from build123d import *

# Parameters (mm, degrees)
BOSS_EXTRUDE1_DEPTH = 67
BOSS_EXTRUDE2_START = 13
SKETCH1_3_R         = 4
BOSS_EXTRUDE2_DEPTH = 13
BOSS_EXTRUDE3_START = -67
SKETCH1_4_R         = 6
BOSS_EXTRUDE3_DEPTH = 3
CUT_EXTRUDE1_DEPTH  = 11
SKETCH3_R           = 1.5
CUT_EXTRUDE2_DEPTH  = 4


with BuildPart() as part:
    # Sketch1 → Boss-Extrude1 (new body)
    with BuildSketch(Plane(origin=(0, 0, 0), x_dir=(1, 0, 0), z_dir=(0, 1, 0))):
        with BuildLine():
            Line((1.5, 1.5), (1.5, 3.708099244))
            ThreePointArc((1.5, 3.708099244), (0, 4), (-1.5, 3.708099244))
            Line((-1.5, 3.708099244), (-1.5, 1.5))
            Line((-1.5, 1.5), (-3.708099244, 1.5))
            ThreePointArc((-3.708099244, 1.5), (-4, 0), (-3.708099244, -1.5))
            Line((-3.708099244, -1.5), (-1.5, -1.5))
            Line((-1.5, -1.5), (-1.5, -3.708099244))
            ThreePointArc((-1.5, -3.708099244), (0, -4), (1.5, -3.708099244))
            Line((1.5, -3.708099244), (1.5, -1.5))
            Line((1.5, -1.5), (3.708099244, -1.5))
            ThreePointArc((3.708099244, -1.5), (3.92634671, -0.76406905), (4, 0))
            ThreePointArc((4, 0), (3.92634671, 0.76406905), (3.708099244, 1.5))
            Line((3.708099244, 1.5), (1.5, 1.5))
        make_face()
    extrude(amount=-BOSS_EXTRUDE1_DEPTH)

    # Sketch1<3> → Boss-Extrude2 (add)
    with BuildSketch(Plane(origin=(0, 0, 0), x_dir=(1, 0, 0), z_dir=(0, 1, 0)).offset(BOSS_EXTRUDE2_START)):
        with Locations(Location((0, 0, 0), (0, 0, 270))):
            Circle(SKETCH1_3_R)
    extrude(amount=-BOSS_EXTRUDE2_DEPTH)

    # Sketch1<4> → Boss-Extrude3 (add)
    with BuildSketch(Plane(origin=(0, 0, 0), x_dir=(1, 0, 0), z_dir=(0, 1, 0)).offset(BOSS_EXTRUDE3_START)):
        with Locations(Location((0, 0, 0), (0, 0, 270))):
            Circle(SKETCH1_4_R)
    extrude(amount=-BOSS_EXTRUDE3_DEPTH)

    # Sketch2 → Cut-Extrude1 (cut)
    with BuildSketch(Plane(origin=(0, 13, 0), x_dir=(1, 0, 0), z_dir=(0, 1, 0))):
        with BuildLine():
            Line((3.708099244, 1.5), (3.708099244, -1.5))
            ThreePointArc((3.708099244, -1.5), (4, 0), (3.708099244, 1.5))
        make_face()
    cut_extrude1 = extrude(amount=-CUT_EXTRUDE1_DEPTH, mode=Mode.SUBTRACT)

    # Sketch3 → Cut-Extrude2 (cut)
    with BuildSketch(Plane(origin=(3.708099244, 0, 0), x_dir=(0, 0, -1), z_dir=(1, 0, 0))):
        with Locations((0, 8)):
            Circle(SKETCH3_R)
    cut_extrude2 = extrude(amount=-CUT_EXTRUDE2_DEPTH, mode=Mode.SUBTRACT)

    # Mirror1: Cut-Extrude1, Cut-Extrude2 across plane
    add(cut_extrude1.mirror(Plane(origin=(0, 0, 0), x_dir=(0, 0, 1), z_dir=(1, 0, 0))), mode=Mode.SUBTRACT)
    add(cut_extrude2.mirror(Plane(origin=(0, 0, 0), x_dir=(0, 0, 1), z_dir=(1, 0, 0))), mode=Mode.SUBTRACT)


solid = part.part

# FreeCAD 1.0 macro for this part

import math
import FreeCAD as App
import Part
import Sketcher
from FreeCAD import Vector
Q = App.Units.Quantity

doc = App.newDocument("Part")
params = doc.addObject("Spreadsheet::Sheet", "Params")
for row, (alias, value) in enumerate([
    ("sketch1_radius", "4 mm"),
    ("pad1_length", "67 mm"),
    ("sketch2_diameter", "8 mm"),
    ("pad2_length", "13 mm"),
    ("sketch3_diameter", "12 mm"),
    ("pad3_length", "3 mm"),
    ("sketch4_radius", "4 mm"),
    ("sketch4_height", "3 mm"),
    ("pocket1_length", "11 mm"),
    ("sketch5_diameter", "3 mm"),
    ("pocket2_length", "4 mm"),
], start=1):
    params.set(f"A{row}", alias)
    params.set(f"B{row}", "=" + value)
    params.setAlias(f"B{row}", alias)

body = doc.addObject("PartDesign::Body", "Body")

# Sketch on XZ plane
sketch1 = body.newObject("Sketcher::SketchObject", "Sketch")
sketch1.AttachmentSupport = (doc.getObject("XZ_Plane"), [""])
sketch1.MapMode = "FlatFace"
sketch1.addGeometry(Part.LineSegment(Vector(1.5, -1.5, 0), Vector(1.5, -3.708099, 0)), False)
sketch1.addGeometry(Part.ArcOfCircle(Part.Circle(Vector(0, 0, 0), Vector(0, 0, 1), 4), math.radians(-112.024313), math.radians(-67.975687)), False)
sketch1.addGeometry(Part.LineSegment(Vector(-1.5, -3.708099, 0), Vector(-1.5, -1.5, 0)), False)
sketch1.addGeometry(Part.LineSegment(Vector(-1.5, -1.5, 0), Vector(-3.708099, -1.5, 0)), False)
sketch1.addGeometry(Part.ArcOfCircle(Part.Circle(Vector(0, 0, 0), Vector(0, 0, 1), 4), math.radians(157.975687), math.radians(202.024313)), False)
sketch1.addGeometry(Part.LineSegment(Vector(-3.708099, 1.5, 0), Vector(-1.5, 1.5, 0)), False)
sketch1.addGeometry(Part.LineSegment(Vector(-1.5, 1.5, 0), Vector(-1.5, 3.708099, 0)), False)
sketch1.addGeometry(Part.ArcOfCircle(Part.Circle(Vector(0, 0, 0), Vector(0, 0, 1), 4), math.radians(67.975687), math.radians(112.024313)), False)
sketch1.addGeometry(Part.LineSegment(Vector(1.5, 3.708099, 0), Vector(1.5, 1.5, 0)), False)
sketch1.addGeometry(Part.LineSegment(Vector(1.5, 1.5, 0), Vector(3.708099, 1.5, 0)), False)
sketch1.addGeometry(Part.ArcOfCircle(Part.Circle(Vector(0, 0, 0), Vector(0, 0, 1), 4), math.radians(0), math.radians(22.024313)), False)
sketch1.addGeometry(Part.ArcOfCircle(Part.Circle(Vector(0, 0, 0), Vector(0, 0, 1), 4), math.radians(-22.024313), math.radians(0)), False)
sketch1.addGeometry(Part.LineSegment(Vector(3.708099, -1.5, 0), Vector(1.5, -1.5, 0)), False)
sketch1.addConstraint(Sketcher.Constraint("Coincident", 0, 2, 1, 2))
sketch1.addConstraint(Sketcher.Constraint("Coincident", 1, 1, 2, 1))
sketch1.addConstraint(Sketcher.Constraint("Coincident", 2, 2, 3, 1))
sketch1.addConstraint(Sketcher.Constraint("Coincident", 3, 2, 4, 2))
sketch1.addConstraint(Sketcher.Constraint("Coincident", 4, 1, 5, 1))
sketch1.addConstraint(Sketcher.Constraint("Coincident", 5, 2, 6, 1))
sketch1.addConstraint(Sketcher.Constraint("Coincident", 6, 2, 7, 2))
sketch1.addConstraint(Sketcher.Constraint("Coincident", 7, 1, 8, 1))
sketch1.addConstraint(Sketcher.Constraint("Coincident", 8, 2, 9, 1))
sketch1.addConstraint(Sketcher.Constraint("Coincident", 9, 2, 10, 2))
sketch1.addConstraint(Sketcher.Constraint("Tangent", 10, 1, 11, 2))
sketch1.addConstraint(Sketcher.Constraint("Coincident", 11, 1, 12, 1))
sketch1.addConstraint(Sketcher.Constraint("Coincident", 12, 2, 0, 1))
sketch1.addConstraint(Sketcher.Constraint("Vertical", 0))
sketch1.addConstraint(Sketcher.Constraint("Vertical", 2))
sketch1.addConstraint(Sketcher.Constraint("Horizontal", 3))
sketch1.addConstraint(Sketcher.Constraint("Horizontal", 5))
sketch1.addConstraint(Sketcher.Constraint("Vertical", 6))
sketch1.addConstraint(Sketcher.Constraint("Vertical", 8))
sketch1.addConstraint(Sketcher.Constraint("Horizontal", 9))
sketch1.addConstraint(Sketcher.Constraint("Horizontal", 12))
sketch1.addConstraint(Sketcher.Constraint("Coincident", 1, 3, -1, 1))
sketch1.addConstraint(Sketcher.Constraint("Coincident", 4, 3, -1, 1))
sketch1.addConstraint(Sketcher.Constraint("Coincident", 7, 3, -1, 1))
sketch1.addConstraint(Sketcher.Constraint("Coincident", 10, 3, -1, 1))
sketch1.addConstraint(Sketcher.Constraint("Equal", 1, 4))
sketch1.addConstraint(Sketcher.Constraint("Equal", 4, 7))
sketch1.addConstraint(Sketcher.Constraint("Equal", 7, 10))
sketch1.addConstraint(Sketcher.Constraint("Equal", 10, 11))
sketch1.addConstraint(Sketcher.Constraint("Symmetric", 2, 2, 8, 2, -1, 1))
sketch1.addConstraint(Sketcher.Constraint("Symmetric", 5, 2, 12, 2, -1, 1))
sketch1.addConstraint(Sketcher.Constraint("Symmetric", 5, 2, 8, 2, -2))
sketch1.addConstraint(Sketcher.Constraint("PointOnObject", 10, 1, -1))
sketch1.addConstraint(Sketcher.Constraint("Equal", 12, 0))
sketch1.addConstraint(Sketcher.Constraint("Radius", 1, Q("4 mm")))
sketch1.addConstraint(Sketcher.Constraint("DistanceX", 1, 1, 0, 2, Q("3 mm")))
sketch1.setExpression("Constraints[34]", "Params.sketch1_radius")
pad1 = body.newObject("PartDesign::Pad", "Pad")
pad1.Profile = sketch1
pad1.setExpression("Length", "Params.pad1_length")

# Sketch on XZ plane
sketch2 = body.newObject("Sketcher::SketchObject", "Sketch001")
sketch2.AttachmentSupport = (doc.getObject("XZ_Plane"), [""])
sketch2.MapMode = "FlatFace"
sketch2.AttachmentOffset = App.Placement(Vector(0, 0, -13), App.Rotation())
sketch2.addGeometry(Part.Circle(Vector(0, 0, 0), Vector(0, 0, 1), 4), False)
sketch2.addConstraint(Sketcher.Constraint("Coincident", 0, 3, -1, 1))
sketch2.addConstraint(Sketcher.Constraint("Diameter", 0, Q("8 mm")))
sketch2.setExpression("Constraints[1]", "Params.sketch2_diameter")
pad2 = body.newObject("PartDesign::Pad", "Pad001")
pad2.Profile = sketch2
pad2.setExpression("Length", "Params.pad2_length")

# Sketch on XZ plane
sketch3 = body.newObject("Sketcher::SketchObject", "Sketch002")
sketch3.AttachmentSupport = (doc.getObject("XZ_Plane"), [""])
sketch3.MapMode = "FlatFace"
sketch3.AttachmentOffset = App.Placement(Vector(0, 0, 67), App.Rotation())
sketch3.addGeometry(Part.Circle(Vector(0, 0, 0), Vector(0, 0, 1), 6), False)
sketch3.addConstraint(Sketcher.Constraint("Coincident", 0, 3, -1, 1))
sketch3.addConstraint(Sketcher.Constraint("Diameter", 0, Q("12 mm")))
sketch3.setExpression("Constraints[1]", "Params.sketch3_diameter")
pad3 = body.newObject("PartDesign::Pad", "Pad002")
pad3.Profile = sketch3
pad3.setExpression("Length", "Params.pad3_length")

# Sketch on XZ plane
sketch4 = body.newObject("Sketcher::SketchObject", "Sketch003")
sketch4.AttachmentSupport = (doc.getObject("XZ_Plane"), [""])
sketch4.MapMode = "FlatFace"
sketch4.AttachmentOffset = App.Placement(Vector(0, 0, -13), App.Rotation())
sketch4.addGeometry(Part.LineSegment(Vector(3.708099, -1.5, 0), Vector(3.708099, 1.5, 0)), False)
sketch4.addGeometry(Part.ArcOfCircle(Part.Circle(Vector(0, 0, 0), Vector(0, 0, 1), 4), math.radians(-22.024313), math.radians(22.024313)), False)
sketch4.addConstraint(Sketcher.Constraint("Coincident", 0, 1, 1, 1))
sketch4.addConstraint(Sketcher.Constraint("Coincident", 1, 2, 0, 2))
sketch4.addConstraint(Sketcher.Constraint("Vertical", 0))
sketch4.addConstraint(Sketcher.Constraint("Coincident", 1, 3, -1, 1))
sketch4.addConstraint(Sketcher.Constraint("Radius", 1, Q("4 mm")))
sketch4.addConstraint(Sketcher.Constraint("DistanceY", 0, 1, 0, 2, Q("3 mm")))
sketch4.setExpression("Constraints[4]", "Params.sketch4_radius")
sketch4.setExpression("Constraints[5]", "Params.sketch4_height")
pocket1 = body.newObject("PartDesign::Pocket", "Pocket")
pocket1.Profile = sketch4
pocket1.setExpression("Length", "Params.pocket1_length")
pocket1.Reversed = True

# Sketch on YZ plane
sketch5 = body.newObject("Sketcher::SketchObject", "Sketch004")
sketch5.AttachmentSupport = (doc.getObject("YZ_Plane"), [""])
sketch5.MapMode = "FlatFace"
sketch5.AttachmentOffset = App.Placement(Vector(0, 0, 3.708099), App.Rotation())
sketch5.addGeometry(Part.Circle(Vector(8, 0, 0), Vector(0, 0, 1), 1.5), False)
sketch5.addConstraint(Sketcher.Constraint("PointOnObject", 0, 3, -1))
sketch5.addConstraint(Sketcher.Constraint("Diameter", 0, Q("3 mm")))
sketch5.addConstraint(Sketcher.Constraint("DistanceX", -1, 1, 0, 3, Q("8 mm")))
sketch5.setExpression("Constraints[1]", "Params.sketch5_diameter")
pocket2 = body.newObject("PartDesign::Pocket", "Pocket001")
pocket2.Profile = sketch5
pocket2.setExpression("Length", "Params.pocket2_length")
doc.recompute()

mirrored = body.newObject("PartDesign::Mirrored", "Mirrored")
mirrored.Originals = [pocket1, pocket2]
mirrored.MirrorPlane = (doc.getObject("YZ_Plane"), [""])
body.Tip = mirrored

doc.recompute()
